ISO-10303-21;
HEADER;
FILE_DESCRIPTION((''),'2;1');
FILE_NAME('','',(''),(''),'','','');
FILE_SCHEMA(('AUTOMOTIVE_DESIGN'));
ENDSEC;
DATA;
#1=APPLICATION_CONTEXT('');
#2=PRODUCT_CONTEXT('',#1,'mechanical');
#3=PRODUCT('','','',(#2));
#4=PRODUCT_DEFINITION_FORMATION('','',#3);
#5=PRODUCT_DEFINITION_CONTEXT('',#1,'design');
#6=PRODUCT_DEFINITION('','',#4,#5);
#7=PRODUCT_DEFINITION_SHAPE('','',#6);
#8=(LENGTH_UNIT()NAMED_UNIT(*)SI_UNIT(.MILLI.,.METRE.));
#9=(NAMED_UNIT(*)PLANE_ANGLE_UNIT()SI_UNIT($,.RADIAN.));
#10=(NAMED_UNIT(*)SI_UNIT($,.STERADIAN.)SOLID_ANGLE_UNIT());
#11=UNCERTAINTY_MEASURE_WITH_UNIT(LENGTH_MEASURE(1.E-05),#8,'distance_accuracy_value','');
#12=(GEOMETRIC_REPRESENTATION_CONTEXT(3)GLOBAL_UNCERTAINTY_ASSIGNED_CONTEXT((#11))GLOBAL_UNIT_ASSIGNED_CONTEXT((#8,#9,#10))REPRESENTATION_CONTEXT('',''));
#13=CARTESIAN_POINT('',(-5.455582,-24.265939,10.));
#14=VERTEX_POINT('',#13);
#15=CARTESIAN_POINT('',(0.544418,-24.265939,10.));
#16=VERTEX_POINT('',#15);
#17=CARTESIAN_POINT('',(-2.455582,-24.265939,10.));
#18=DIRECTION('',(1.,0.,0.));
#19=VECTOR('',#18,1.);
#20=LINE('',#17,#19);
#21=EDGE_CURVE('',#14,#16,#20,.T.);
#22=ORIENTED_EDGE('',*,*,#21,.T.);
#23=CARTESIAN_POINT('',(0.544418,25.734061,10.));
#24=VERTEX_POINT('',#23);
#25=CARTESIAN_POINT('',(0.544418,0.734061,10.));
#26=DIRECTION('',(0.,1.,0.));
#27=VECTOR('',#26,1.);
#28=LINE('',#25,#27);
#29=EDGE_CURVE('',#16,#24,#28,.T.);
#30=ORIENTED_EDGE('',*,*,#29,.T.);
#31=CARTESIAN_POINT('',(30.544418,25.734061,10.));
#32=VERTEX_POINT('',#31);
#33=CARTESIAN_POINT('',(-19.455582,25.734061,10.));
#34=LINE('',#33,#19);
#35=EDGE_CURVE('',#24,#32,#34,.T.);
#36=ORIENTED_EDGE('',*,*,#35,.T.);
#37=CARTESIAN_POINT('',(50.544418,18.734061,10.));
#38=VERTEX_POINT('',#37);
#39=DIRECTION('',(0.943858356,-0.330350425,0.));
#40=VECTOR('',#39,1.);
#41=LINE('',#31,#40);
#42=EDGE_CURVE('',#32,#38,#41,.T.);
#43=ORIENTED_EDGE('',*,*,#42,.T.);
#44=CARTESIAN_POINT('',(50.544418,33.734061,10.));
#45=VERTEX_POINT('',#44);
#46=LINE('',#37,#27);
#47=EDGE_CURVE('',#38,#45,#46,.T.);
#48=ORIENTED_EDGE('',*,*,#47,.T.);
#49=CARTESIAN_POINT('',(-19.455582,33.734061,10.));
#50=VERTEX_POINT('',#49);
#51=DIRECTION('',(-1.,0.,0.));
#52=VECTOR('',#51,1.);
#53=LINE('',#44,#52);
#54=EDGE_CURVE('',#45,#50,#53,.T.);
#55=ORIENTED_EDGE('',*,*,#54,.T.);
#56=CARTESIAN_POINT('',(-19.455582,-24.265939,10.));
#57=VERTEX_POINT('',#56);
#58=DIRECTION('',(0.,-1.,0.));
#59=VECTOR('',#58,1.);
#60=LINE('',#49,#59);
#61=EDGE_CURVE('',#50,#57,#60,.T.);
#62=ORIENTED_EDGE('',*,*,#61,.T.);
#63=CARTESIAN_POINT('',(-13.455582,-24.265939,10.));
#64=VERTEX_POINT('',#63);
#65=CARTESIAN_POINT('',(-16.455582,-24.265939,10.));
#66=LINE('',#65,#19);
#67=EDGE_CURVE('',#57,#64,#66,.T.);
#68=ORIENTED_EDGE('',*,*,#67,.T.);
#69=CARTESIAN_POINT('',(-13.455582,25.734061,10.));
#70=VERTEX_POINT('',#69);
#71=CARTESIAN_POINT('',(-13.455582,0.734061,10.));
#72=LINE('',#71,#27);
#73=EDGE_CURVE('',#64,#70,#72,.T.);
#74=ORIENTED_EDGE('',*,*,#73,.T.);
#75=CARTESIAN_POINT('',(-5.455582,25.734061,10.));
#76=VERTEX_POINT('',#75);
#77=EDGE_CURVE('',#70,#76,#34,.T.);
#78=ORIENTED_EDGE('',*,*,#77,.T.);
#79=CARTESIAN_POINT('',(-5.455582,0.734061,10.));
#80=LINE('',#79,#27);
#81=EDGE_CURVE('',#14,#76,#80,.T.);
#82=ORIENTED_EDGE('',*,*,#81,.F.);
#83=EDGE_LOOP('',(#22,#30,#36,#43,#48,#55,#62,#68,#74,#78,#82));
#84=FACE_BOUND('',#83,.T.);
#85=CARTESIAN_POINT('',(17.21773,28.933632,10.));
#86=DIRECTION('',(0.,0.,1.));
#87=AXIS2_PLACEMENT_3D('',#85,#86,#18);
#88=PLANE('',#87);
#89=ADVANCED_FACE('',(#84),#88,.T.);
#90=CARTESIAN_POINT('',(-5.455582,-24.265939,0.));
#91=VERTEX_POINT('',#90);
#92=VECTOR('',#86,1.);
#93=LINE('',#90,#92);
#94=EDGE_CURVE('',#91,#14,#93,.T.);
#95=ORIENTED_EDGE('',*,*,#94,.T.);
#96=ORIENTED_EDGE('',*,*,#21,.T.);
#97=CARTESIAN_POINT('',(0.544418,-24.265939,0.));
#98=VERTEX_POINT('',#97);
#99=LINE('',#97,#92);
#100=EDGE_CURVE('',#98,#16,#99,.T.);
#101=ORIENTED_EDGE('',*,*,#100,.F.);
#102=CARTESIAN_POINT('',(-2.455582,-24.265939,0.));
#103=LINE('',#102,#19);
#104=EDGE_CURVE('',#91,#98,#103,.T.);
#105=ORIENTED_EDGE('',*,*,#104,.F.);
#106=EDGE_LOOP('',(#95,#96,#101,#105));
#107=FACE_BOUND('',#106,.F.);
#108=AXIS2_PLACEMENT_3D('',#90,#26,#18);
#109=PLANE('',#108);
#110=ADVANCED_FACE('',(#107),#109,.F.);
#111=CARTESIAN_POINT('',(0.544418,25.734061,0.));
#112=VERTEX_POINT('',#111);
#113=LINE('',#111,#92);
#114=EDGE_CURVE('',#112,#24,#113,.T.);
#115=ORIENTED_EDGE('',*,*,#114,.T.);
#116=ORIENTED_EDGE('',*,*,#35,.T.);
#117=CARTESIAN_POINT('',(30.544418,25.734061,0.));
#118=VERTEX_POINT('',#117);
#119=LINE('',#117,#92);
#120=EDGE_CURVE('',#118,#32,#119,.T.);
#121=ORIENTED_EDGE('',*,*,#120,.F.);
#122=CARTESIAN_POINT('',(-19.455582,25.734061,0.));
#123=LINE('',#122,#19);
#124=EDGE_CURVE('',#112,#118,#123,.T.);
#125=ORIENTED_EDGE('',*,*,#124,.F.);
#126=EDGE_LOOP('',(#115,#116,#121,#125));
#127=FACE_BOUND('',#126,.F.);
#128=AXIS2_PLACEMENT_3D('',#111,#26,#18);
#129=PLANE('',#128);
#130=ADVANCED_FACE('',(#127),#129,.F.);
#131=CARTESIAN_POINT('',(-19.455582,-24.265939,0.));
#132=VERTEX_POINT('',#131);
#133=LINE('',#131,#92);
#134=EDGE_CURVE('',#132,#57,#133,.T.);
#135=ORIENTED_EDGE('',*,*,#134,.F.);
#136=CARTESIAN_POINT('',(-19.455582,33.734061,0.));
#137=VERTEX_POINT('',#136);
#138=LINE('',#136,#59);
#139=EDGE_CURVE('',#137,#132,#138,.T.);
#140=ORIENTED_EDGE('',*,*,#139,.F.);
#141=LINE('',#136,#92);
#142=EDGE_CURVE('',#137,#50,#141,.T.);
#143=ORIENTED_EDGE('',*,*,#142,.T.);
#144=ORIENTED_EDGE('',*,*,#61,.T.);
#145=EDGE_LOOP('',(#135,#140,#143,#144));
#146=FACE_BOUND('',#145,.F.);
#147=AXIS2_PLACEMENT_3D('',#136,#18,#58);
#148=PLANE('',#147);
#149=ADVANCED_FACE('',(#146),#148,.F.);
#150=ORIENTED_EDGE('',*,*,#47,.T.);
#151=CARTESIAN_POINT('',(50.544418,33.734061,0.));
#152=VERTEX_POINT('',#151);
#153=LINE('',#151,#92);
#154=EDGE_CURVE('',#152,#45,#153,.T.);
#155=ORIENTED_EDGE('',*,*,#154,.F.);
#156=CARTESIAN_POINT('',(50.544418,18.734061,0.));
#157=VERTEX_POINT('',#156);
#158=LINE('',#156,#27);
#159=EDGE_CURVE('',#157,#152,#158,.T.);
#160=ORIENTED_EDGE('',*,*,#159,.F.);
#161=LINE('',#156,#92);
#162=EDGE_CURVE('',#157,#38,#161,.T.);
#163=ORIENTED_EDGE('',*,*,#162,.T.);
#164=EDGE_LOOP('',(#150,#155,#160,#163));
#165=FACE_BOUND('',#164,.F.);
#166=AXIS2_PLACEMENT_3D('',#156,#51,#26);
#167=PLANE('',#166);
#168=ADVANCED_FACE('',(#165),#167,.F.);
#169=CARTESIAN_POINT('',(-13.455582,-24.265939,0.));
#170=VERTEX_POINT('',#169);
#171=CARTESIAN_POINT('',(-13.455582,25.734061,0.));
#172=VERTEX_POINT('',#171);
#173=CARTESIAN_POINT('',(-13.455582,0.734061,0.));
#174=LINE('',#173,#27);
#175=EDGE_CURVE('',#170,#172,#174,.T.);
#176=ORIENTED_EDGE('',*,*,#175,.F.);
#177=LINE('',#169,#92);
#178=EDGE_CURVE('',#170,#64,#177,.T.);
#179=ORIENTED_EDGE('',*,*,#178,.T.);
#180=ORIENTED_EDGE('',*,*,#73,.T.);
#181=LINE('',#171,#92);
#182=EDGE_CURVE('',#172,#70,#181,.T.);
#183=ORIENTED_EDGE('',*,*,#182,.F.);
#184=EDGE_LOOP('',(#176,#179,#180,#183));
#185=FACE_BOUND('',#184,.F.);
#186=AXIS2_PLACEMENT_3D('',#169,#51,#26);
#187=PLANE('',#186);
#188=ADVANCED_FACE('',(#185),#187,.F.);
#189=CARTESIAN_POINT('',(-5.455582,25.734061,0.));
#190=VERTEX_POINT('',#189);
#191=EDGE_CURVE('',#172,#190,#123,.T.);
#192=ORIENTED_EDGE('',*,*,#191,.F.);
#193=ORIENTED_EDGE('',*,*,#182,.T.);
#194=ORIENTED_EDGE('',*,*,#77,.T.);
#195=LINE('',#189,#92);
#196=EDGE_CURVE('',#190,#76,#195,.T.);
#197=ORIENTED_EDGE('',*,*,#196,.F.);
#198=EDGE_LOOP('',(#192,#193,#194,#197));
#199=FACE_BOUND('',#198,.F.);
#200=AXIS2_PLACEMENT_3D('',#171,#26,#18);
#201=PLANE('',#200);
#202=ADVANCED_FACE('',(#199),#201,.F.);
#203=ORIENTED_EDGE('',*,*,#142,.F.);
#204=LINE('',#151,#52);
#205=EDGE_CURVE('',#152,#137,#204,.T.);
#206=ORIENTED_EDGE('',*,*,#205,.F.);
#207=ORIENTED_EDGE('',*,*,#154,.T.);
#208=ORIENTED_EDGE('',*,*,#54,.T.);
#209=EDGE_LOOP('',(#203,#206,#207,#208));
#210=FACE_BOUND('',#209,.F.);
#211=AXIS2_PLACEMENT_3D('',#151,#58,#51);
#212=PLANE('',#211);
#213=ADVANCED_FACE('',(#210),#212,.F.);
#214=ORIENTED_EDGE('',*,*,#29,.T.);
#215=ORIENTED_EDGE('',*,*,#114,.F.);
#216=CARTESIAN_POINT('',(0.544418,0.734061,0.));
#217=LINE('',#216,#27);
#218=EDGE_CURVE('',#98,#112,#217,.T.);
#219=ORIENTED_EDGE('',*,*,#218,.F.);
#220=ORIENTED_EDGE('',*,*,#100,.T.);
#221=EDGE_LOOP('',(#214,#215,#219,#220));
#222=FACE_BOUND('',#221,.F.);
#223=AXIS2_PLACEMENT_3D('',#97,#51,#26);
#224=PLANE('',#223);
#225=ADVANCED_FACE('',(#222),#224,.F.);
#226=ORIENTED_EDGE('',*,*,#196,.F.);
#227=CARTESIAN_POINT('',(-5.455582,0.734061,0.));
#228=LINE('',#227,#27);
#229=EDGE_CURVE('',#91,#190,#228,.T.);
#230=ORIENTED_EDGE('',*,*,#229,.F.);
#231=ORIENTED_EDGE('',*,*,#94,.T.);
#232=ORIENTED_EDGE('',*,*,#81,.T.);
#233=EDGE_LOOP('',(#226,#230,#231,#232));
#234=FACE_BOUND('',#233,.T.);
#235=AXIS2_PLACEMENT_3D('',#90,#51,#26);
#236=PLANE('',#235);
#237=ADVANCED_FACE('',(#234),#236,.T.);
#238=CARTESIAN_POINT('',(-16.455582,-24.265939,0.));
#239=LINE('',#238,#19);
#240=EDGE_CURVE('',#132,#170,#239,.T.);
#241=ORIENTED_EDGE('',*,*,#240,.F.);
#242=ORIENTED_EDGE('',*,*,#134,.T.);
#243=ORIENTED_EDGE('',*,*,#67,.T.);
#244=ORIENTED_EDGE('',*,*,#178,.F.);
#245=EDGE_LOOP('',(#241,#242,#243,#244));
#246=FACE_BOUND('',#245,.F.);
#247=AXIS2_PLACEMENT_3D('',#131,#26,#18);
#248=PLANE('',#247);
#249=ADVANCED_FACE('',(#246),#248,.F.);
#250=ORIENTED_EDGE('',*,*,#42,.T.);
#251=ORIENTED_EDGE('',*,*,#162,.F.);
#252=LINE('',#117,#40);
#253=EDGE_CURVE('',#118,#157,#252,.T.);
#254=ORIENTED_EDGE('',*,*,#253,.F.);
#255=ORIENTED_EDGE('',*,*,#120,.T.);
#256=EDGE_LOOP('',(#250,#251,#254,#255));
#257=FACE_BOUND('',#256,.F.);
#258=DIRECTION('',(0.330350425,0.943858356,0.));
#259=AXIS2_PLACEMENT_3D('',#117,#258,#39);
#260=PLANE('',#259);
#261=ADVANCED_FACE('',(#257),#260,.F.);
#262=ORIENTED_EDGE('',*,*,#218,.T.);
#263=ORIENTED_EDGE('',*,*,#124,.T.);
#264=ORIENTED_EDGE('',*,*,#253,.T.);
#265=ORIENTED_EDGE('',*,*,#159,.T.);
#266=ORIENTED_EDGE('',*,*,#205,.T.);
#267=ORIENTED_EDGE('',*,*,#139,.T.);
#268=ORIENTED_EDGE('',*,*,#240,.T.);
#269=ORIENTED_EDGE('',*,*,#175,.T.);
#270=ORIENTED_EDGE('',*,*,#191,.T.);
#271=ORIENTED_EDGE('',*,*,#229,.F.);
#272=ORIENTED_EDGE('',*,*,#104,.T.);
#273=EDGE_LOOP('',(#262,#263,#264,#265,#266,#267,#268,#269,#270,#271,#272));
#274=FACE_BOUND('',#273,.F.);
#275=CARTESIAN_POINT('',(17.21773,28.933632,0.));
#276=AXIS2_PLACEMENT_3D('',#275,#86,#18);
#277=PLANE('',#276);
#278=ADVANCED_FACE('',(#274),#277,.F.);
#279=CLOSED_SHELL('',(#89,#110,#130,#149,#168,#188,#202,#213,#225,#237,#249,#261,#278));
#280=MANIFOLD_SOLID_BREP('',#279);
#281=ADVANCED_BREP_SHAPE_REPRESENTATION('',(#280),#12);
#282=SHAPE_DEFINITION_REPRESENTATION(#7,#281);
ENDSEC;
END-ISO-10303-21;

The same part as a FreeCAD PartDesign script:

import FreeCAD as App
import Part
import Sketcher
Q = App.Units.Quantity

doc = App.newDocument("Part")
body = doc.addObject("PartDesign::Body", "Body")

# Sketch on XY plane
sketch1 = body.newObject("Sketcher::SketchObject", "Sketch")
sketch1.AttachmentSupport = (doc.getObject("XY_Plane"), [""])
sketch1.MapMode = "FlatFace"
sketch1.addGeometry(Part.LineSegment(App.Vector(-19, 34, 0), App.Vector(-19, -24, 0)), False)
sketch1.addGeometry(Part.LineSegment(App.Vector(-19, -24, 0), App.Vector(-13, -24, 0)), False)
sketch1.addGeometry(Part.LineSegment(App.Vector(-13, -24, 0), App.Vector(-13, 26, 0)), False)
sketch1.addGeometry(Part.LineSegment(App.Vector(-13, 26, 0), App.Vector(-5, 26, 0)), False)
sketch1.addGeometry(Part.LineSegment(App.Vector(-5, 26, 0), App.Vector(-5, -24, 0)), False)
sketch1.addGeometry(Part.LineSegment(App.Vector(-5, -24, 0), App.Vector(1, -24, 0)), False)
sketch1.addGeometry(Part.LineSegment(App.Vector(1, -24, 0), App.Vector(1, 26, 0)), False)
sketch1.addGeometry(Part.LineSegment(App.Vector(1, 26, 0), App.Vector(31, 26, 0)), False)
sketch1.addGeometry(Part.LineSegment(App.Vector(31, 26, 0), App.Vector(51, 19, 0)), False)
sketch1.addGeometry(Part.LineSegment(App.Vector(51, 19, 0), App.Vector(51, 34, 0)), False)
sketch1.addGeometry(Part.LineSegment(App.Vector(51, 34, 0), App.Vector(-19, 34, 0)), False)
sketch1.addConstraint(Sketcher.Constraint("Coincident", 0, 2, 1, 1))
sketch1.addConstraint(Sketcher.Constraint("Coincident", 1, 2, 2, 1))
sketch1.addConstraint(Sketcher.Constraint("Coincident", 2, 2, 3, 1))
sketch1.addConstraint(Sketcher.Constraint("Coincident", 3, 2, 4, 1))
sketch1.addConstraint(Sketcher.Constraint("Coincident", 4, 2, 5, 1))
sketch1.addConstraint(Sketcher.Constraint("Coincident", 5, 2, 6, 1))
sketch1.addConstraint(Sketcher.Constraint("Coincident", 6, 2, 7, 1))
sketch1.addConstraint(Sketcher.Constraint("Coincident", 7, 2, 8, 1))
sketch1.addConstraint(Sketcher.Constraint("Coincident", 8, 2, 9, 1))
sketch1.addConstraint(Sketcher.Constraint("Coincident", 9, 2, 10, 1))
sketch1.addConstraint(Sketcher.Constraint("Coincident", 10, 2, 0, 1))
sketch1.addConstraint(Sketcher.Constraint("Vertical", 0))
sketch1.addConstraint(Sketcher.Constraint("Horizontal", 1))
sketch1.addConstraint(Sketcher.Constraint("Vertical", 2))
sketch1.addConstraint(Sketcher.Constraint("Horizontal", 3))
sketch1.addConstraint(Sketcher.Constraint("Vertical", 4))
sketch1.addConstraint(Sketcher.Constraint("Horizontal", 5))
sketch1.addConstraint(Sketcher.Constraint("Vertical", 6))
sketch1.addConstraint(Sketcher.Constraint("Horizontal", 7))
sketch1.addConstraint(Sketcher.Constraint("Vertical", 9))
sketch1.addConstraint(Sketcher.Constraint("Horizontal", 10))
sketch1.addConstraint(Sketcher.Constraint("Horizontal", 1, 2, 4, 2))
sketch1.addConstraint(Sketcher.Constraint("Horizontal", 3, 2, 6, 2))
sketch1.addConstraint(Sketcher.Constraint("Equal", 1, 5))
sketch1.addConstraint(Sketcher.Constraint("DistanceX", 1, 1, 1, 2, Q("6 mm")))
sketch1.addConstraint(Sketcher.Constraint("DistanceX", 3, 1, 3, 2, Q("8 mm")))
sketch1.addConstraint(Sketcher.Constraint("DistanceX", 7, 1, 7, 2, Q("30 mm")))
sketch1.addConstraint(Sketcher.Constraint("DistanceX", 10, 2, 10, 1, Q("70 mm")))
sketch1.addConstraint(Sketcher.Constraint("DistanceY", 0, 2, 0, 1, Q("58 mm")))
sketch1.addConstraint(Sketcher.Constraint("DistanceY", 2, 1, 2, 2, Q("50 mm")))
sketch1.addConstraint(Sketcher.Constraint("DistanceY", 9, 1, 9, 2, Q("15 mm")))
sketch1.addConstraint(Sketcher.Constraint("DistanceX", 0, 2, -1, 1, Q("19.455582 mm")))
sketch1.addConstraint(Sketcher.Constraint("DistanceY", 0, 2, -1, 1, Q("24.265939 mm")))
pad1 = body.newObject("PartDesign::Pad", "Pad")
pad1.Profile = sketch1
pad1.Length = 10
body2 = doc.addObject("PartDesign::Body", "Body001")
doc.recompute()

body2.BaseFeature = body
doc.recompute()
body.Visibility = False

doc.recompute()
